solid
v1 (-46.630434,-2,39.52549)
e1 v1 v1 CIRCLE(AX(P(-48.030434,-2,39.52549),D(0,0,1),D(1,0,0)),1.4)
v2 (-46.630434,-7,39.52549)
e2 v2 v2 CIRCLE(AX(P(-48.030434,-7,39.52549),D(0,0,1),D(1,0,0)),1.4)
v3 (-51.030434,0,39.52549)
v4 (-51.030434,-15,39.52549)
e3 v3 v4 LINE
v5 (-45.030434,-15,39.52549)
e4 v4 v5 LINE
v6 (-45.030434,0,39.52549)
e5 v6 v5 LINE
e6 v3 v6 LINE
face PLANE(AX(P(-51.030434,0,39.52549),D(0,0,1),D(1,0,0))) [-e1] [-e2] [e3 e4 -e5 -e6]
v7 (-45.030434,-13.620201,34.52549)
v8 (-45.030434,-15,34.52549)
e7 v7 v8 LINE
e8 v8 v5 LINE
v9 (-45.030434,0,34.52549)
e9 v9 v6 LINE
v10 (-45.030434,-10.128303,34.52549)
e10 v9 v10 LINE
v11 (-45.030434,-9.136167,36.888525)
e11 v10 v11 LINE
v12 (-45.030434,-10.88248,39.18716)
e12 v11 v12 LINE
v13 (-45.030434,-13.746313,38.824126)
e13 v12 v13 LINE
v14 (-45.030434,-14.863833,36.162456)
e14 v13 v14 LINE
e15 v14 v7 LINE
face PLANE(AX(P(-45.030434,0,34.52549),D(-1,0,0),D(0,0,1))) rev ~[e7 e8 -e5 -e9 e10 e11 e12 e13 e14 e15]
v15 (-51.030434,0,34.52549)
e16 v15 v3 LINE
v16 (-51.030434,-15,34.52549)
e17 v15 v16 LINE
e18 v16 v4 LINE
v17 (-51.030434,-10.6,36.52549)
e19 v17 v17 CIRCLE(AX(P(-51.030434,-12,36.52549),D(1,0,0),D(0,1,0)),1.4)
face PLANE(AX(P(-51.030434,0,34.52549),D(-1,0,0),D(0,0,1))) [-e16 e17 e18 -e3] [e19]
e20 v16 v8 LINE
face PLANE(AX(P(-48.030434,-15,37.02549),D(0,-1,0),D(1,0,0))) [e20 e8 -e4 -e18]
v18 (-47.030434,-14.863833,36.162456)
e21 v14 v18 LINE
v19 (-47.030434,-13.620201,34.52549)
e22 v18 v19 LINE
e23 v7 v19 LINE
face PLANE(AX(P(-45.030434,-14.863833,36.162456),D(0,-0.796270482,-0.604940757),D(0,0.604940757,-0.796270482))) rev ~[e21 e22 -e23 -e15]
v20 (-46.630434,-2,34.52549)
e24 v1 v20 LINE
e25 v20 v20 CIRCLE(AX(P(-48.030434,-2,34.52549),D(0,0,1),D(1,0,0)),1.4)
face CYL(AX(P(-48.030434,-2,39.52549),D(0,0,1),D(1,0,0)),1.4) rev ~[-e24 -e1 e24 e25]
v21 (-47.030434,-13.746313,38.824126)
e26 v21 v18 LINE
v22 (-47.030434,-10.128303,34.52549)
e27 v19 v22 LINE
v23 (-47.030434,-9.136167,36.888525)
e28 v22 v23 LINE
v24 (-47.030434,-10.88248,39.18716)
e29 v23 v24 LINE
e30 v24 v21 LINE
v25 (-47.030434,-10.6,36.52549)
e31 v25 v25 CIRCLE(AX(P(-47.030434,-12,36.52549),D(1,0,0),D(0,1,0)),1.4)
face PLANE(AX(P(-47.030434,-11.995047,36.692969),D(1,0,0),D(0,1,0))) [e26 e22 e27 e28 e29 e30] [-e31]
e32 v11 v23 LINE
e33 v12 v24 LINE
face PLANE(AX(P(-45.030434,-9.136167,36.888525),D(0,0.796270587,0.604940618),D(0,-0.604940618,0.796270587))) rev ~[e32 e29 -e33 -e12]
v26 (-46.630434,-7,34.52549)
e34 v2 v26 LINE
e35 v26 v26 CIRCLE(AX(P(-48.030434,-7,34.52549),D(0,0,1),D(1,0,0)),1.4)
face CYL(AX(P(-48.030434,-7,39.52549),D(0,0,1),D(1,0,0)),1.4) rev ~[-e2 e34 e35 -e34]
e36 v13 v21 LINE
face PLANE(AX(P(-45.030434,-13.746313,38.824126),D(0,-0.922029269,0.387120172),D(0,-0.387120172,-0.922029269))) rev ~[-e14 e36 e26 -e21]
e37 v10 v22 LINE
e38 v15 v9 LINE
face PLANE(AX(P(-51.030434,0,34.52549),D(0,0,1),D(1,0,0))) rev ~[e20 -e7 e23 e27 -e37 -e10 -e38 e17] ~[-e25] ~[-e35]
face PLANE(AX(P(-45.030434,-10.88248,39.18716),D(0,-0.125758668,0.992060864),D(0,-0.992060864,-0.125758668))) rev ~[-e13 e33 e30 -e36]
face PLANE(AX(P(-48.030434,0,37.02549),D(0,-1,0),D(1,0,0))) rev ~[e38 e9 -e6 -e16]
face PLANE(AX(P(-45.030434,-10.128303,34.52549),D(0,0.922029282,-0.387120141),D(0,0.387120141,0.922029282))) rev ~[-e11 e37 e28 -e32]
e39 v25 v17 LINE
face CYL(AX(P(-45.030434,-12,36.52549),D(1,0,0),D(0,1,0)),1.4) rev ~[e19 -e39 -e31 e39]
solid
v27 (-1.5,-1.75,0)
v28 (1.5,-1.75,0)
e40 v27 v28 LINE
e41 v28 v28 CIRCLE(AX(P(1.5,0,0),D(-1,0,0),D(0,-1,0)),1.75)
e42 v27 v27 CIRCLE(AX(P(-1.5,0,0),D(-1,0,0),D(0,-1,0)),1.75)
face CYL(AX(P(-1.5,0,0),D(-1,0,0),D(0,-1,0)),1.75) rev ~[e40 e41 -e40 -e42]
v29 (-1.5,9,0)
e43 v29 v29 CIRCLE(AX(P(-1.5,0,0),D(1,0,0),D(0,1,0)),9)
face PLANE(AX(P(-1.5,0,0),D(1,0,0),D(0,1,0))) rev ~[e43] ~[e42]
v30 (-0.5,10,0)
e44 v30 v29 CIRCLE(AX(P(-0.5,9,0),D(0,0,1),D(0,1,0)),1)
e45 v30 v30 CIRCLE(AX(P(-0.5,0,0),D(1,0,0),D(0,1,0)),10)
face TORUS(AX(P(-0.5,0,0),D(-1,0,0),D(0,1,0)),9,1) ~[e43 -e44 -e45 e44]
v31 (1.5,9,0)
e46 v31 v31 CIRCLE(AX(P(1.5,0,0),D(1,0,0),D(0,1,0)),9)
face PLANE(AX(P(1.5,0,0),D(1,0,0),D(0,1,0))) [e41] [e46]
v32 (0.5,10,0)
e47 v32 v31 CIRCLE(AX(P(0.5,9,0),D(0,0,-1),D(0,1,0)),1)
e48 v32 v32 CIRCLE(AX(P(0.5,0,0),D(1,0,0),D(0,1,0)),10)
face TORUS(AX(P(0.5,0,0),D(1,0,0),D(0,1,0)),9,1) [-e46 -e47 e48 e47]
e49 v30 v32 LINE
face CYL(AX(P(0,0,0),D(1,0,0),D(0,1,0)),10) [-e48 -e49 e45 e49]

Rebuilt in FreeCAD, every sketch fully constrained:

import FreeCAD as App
import Part
import Sketcher

V = App.Vector
Q = App.Units.Quantity


def edges_at(feature, points):
    """Names of the edges that pass closest to the given points."""
    edges = feature.Shape.Edges
    near = lambda p: min(range(len(edges)), key=lambda i: edges[i].distToShape(Part.Vertex(*p))[0])
    return sorted({f"Edge{near(p) + 1}" for p in points})


def add_polygon(sketch, points):
    """Adds a closed chain of lines whose ends are joined by coincident constraints."""
    first, n = sketch.GeometryCount, len(points)
    for a, b in zip(points, points[1:] + points[:1]):
        sketch.addGeometry(Part.LineSegment(App.Vector(*a, 0), App.Vector(*b, 0)), False)
    for i in range(n):
        sketch.addConstraint(Sketcher.Constraint("Coincident", first + i, 2, first + (i + 1) % n, 1))

doc = App.newDocument("Part")
params = doc.addObject("Spreadsheet::Sheet", "Params")
for row, (alias, value) in enumerate([
    ("sketch1_diameter", "20 mm"),
    ("pad1_length", "3 mm"),
    ("sketch2_diameter", "3.5 mm"),
    ("fillet_radius", "1 mm"),
    ("sketch3_width", "6 mm"),
    ("sketch3_height", "5 mm"),
    ("pad2_length", "15 mm"),
    ("sketch4_diameter", "2.8 mm"),
    ("sketch5_diameter", "2.8 mm"),
    ("sketch6_diameter", "2.8 mm"),
    ("pocket4_length", "2 mm"),
], start=1):
    params.set(f"A{row}", alias)
    params.set(f"B{row}", "=" + value)
    params.setAlias(f"B{row}", alias)

body = doc.addObject("PartDesign::Body", "Body")

sketch1 = body.newObject("Sketcher::SketchObject", "Sketch")
sketch1.AttachmentSupport = (doc.getObject("YZ_Plane"), [""])
sketch1.MapMode = "FlatFace"
sketch1.addGeometry(Part.Circle(V(0, 0, 0), V(0, 0, 1), 10), False)
sketch1.addConstraint(Sketcher.Constraint("Coincident", 0, 3, -1, 1))
sketch1.addConstraint(Sketcher.Constraint("Diameter", 0, Q("20 mm")))
sketch1.setExpression("Constraints[1]", "Params.sketch1_diameter")
pad1 = body.newObject("PartDesign::Pad", "Pad")
pad1.Profile = sketch1
pad1.setExpression("Length", "Params.pad1_length")
pad1.Midplane = True

sketch2 = body.newObject("Sketcher::SketchObject", "Sketch001")
sketch2.AttachmentSupport = (doc.getObject("YZ_Plane"), [""])
sketch2.MapMode = "FlatFace"
sketch2.AttachmentOffset = App.Placement(V(0, 0, -1.5), App.Rotation())
sketch2.addGeometry(Part.Circle(V(0, 0, 0), V(0, 0, 1), 1.8), False)
sketch2.addConstraint(Sketcher.Constraint("Coincident", 0, 3, -1, 1))
sketch2.addConstraint(Sketcher.Constraint("Diameter", 0, Q("3.5 mm")))
sketch2.setExpression("Constraints[1]", "Params.sketch2_diameter")
pocket1 = body.newObject("PartDesign::Pocket", "Pocket")
pocket1.Profile = sketch2
pocket1.Type = "ThroughAll"
pocket1.Reversed = True
doc.recompute()

fillet = body.newObject("PartDesign::Fillet", "Fillet")
fillet.Base = (pocket1, edges_at(pocket1, [(1.5, -10, 0), (-1.5, -10, 0)]))
fillet.setExpression("Radius", "Params.fillet_radius")
body2 = doc.addObject("PartDesign::Body", "Body001")

sketch3 = body2.newObject("Sketcher::SketchObject", "Sketch002")
sketch3.AttachmentSupport = (doc.getObject("XZ_Plane001"), [""])
sketch3.MapMode = "FlatFace"
add_polygon(sketch3, [(-51, 40), (-51, 35), (-45, 35), (-45, 40)])
sketch3.addConstraint(Sketcher.Constraint("Vertical", 0))
sketch3.addConstraint(Sketcher.Constraint("Horizontal", 1))
sketch3.addConstraint(Sketcher.Constraint("Vertical", 2))
sketch3.addConstraint(Sketcher.Constraint("Horizontal", 3))
sketch3.addConstraint(Sketcher.Constraint("DistanceX", 1, 1, 1, 2, Q("6 mm")))
sketch3.addConstraint(Sketcher.Constraint("DistanceY", 0, 2, 0, 1, Q("5 mm")))
sketch3.addConstraint(Sketcher.Constraint("DistanceY", -1, 1, 0, 2, Q("34.52549 mm")))
sketch3.addConstraint(Sketcher.Constraint("DistanceX", 0, 2, -1, 1, Q("51.030434 mm")))
sketch3.setExpression("Constraints[8]", "Params.sketch3_width")
sketch3.setExpression("Constraints[9]", "Params.sketch3_height")
pad2 = body2.newObject("PartDesign::Pad", "Pad001")
pad2.Profile = sketch3
pad2.setExpression("Length", "Params.pad2_length")

sketch4 = body2.newObject("Sketcher::SketchObject", "Sketch003")
sketch4.AttachmentSupport = (doc.getObject("XY_Plane001"), [""])
sketch4.MapMode = "FlatFace"
sketch4.AttachmentOffset = App.Placement(V(0, 0, 39.52549), App.Rotation())
sketch4.addGeometry(Part.Circle(V(-48, -2, 0), V(0, 0, 1), 1.4), False)
sketch4.addGeometry(Part.Circle(V(-48, -7, 0), V(0, 0, 1), 1.4), False)
sketch4.addConstraint(Sketcher.Constraint("Equal", 0, 1))
sketch4.addConstraint(Sketcher.Constraint("Vertical", 0, 3, 1, 3))
sketch4.addConstraint(Sketcher.Constraint("Diameter", 0, Q("2.8 mm")))
sketch4.addConstraint(Sketcher.Constraint("DistanceY", 0, 3, -1, 1, Q("2 mm")))
sketch4.addConstraint(Sketcher.Constraint("DistanceY", 1, 3, -1, 1, Q("7 mm")))
sketch4.addConstraint(Sketcher.Constraint("DistanceX", 0, 3, -1, 1, Q("48.030434 mm")))
sketch4.setExpression("Constraints[2]", "Params.sketch4_diameter")
pocket2 = body2.newObject("PartDesign::Pocket", "Pocket001")
pocket2.Profile = sketch4
pocket2.Type = "ThroughAll"

sketch5 = body2.newObject("Sketcher::SketchObject", "Sketch004")
sketch5.AttachmentSupport = (doc.getObject("YZ_Plane001"), [""])
sketch5.MapMode = "FlatFace"
sketch5.AttachmentOffset = App.Placement(V(0, 0, -45.030434), App.Rotation())
sketch5.addGeometry(Part.Circle(V(-12, 36.5, 0), V(0, 0, 1), 1.4), False)
sketch5.addConstraint(Sketcher.Constraint("Diameter", 0, Q("2.8 mm")))
sketch5.addConstraint(Sketcher.Constraint("DistanceX", 0, 3, -1, 1, Q("12 mm")))
sketch5.addConstraint(Sketcher.Constraint("DistanceY", -1, 1, 0, 3, Q("36.52549 mm")))
sketch5.setExpression("Constraints[0]", "Params.sketch5_diameter")
pocket3 = body2.newObject("PartDesign::Pocket", "Pocket002")
pocket3.Profile = sketch5
pocket3.Type = "ThroughAll"

sketch6 = body2.newObject("Sketcher::SketchObject", "Sketch005")
sketch6.AttachmentSupport = (doc.getObject("YZ_Plane001"), [""])
sketch6.MapMode = "FlatFace"
sketch6.AttachmentOffset = App.Placement(V(0, 0, -45.030434), App.Rotation())
add_polygon(sketch6, [(-14.9, 36.2), (-13.6, 34.5), (-10.1, 34.5), (-9.1, 36.9), (-10.9, 39.2), (-13.7, 38.8)])
sketch6.addGeometry(Part.Circle(V(-12, 36.5, 0), V(0, 0, 1), 1.4), False)
sketch6.addConstraint(Sketcher.Constraint("Horizontal", 1))
sketch6.addConstraint(Sketcher.Constraint("Parallel", 0, 3))
sketch6.addConstraint(Sketcher.Constraint("Parallel", 2, 5))
sketch6.addConstraint(Sketcher.Constraint("Equal", 3, 4))
sketch6.addConstraint(Sketcher.Constraint("Equal", 4, 5))
sketch6.addConstraint(Sketcher.Constraint("Diameter", 6, Q("2.8 mm")))
sketch6.addConstraint(Sketcher.Constraint("DistanceX", 6, 3, -1, 1, Q("12 mm")))
sketch6.addConstraint(Sketcher.Constraint("DistanceY", 0, 2, 6, 3, Q("2 mm")))
sketch6.addConstraint(Sketcher.Constraint("DistanceX", 0, 2, -1, 1, Q("13.620201 mm")))
sketch6.addConstraint(Sketcher.Constraint("DistanceY", 2, 2, 4, 2, Q("1.935601 mm")))
sketch6.addConstraint(Sketcher.Constraint("Distance", 0, Q("2.055791 mm")))
sketch6.addConstraint(Sketcher.Constraint("Distance", 3, Q("2.886751 mm")))
sketch6.addConstraint(Sketcher.Constraint("DistanceX", 1, 1, 1, 2, Q("3.491898 mm")))
sketch6.addConstraint(Sketcher.Constraint("DistanceY", -1, 1, 6, 3, Q("36.52549 mm")))
sketch6.addConstraint(Sketcher.Constraint("DistanceX", 3, 2, -1, 1, Q("10.88248 mm")))
sketch6.setExpression("Constraints[11]", "Params.sketch6_diameter")
pocket4 = body2.newObject("PartDesign::Pocket", "Pocket003")
pocket4.Profile = sketch6
pocket4.setExpression("Length", "Params.pocket4_length")

doc.recompute()
